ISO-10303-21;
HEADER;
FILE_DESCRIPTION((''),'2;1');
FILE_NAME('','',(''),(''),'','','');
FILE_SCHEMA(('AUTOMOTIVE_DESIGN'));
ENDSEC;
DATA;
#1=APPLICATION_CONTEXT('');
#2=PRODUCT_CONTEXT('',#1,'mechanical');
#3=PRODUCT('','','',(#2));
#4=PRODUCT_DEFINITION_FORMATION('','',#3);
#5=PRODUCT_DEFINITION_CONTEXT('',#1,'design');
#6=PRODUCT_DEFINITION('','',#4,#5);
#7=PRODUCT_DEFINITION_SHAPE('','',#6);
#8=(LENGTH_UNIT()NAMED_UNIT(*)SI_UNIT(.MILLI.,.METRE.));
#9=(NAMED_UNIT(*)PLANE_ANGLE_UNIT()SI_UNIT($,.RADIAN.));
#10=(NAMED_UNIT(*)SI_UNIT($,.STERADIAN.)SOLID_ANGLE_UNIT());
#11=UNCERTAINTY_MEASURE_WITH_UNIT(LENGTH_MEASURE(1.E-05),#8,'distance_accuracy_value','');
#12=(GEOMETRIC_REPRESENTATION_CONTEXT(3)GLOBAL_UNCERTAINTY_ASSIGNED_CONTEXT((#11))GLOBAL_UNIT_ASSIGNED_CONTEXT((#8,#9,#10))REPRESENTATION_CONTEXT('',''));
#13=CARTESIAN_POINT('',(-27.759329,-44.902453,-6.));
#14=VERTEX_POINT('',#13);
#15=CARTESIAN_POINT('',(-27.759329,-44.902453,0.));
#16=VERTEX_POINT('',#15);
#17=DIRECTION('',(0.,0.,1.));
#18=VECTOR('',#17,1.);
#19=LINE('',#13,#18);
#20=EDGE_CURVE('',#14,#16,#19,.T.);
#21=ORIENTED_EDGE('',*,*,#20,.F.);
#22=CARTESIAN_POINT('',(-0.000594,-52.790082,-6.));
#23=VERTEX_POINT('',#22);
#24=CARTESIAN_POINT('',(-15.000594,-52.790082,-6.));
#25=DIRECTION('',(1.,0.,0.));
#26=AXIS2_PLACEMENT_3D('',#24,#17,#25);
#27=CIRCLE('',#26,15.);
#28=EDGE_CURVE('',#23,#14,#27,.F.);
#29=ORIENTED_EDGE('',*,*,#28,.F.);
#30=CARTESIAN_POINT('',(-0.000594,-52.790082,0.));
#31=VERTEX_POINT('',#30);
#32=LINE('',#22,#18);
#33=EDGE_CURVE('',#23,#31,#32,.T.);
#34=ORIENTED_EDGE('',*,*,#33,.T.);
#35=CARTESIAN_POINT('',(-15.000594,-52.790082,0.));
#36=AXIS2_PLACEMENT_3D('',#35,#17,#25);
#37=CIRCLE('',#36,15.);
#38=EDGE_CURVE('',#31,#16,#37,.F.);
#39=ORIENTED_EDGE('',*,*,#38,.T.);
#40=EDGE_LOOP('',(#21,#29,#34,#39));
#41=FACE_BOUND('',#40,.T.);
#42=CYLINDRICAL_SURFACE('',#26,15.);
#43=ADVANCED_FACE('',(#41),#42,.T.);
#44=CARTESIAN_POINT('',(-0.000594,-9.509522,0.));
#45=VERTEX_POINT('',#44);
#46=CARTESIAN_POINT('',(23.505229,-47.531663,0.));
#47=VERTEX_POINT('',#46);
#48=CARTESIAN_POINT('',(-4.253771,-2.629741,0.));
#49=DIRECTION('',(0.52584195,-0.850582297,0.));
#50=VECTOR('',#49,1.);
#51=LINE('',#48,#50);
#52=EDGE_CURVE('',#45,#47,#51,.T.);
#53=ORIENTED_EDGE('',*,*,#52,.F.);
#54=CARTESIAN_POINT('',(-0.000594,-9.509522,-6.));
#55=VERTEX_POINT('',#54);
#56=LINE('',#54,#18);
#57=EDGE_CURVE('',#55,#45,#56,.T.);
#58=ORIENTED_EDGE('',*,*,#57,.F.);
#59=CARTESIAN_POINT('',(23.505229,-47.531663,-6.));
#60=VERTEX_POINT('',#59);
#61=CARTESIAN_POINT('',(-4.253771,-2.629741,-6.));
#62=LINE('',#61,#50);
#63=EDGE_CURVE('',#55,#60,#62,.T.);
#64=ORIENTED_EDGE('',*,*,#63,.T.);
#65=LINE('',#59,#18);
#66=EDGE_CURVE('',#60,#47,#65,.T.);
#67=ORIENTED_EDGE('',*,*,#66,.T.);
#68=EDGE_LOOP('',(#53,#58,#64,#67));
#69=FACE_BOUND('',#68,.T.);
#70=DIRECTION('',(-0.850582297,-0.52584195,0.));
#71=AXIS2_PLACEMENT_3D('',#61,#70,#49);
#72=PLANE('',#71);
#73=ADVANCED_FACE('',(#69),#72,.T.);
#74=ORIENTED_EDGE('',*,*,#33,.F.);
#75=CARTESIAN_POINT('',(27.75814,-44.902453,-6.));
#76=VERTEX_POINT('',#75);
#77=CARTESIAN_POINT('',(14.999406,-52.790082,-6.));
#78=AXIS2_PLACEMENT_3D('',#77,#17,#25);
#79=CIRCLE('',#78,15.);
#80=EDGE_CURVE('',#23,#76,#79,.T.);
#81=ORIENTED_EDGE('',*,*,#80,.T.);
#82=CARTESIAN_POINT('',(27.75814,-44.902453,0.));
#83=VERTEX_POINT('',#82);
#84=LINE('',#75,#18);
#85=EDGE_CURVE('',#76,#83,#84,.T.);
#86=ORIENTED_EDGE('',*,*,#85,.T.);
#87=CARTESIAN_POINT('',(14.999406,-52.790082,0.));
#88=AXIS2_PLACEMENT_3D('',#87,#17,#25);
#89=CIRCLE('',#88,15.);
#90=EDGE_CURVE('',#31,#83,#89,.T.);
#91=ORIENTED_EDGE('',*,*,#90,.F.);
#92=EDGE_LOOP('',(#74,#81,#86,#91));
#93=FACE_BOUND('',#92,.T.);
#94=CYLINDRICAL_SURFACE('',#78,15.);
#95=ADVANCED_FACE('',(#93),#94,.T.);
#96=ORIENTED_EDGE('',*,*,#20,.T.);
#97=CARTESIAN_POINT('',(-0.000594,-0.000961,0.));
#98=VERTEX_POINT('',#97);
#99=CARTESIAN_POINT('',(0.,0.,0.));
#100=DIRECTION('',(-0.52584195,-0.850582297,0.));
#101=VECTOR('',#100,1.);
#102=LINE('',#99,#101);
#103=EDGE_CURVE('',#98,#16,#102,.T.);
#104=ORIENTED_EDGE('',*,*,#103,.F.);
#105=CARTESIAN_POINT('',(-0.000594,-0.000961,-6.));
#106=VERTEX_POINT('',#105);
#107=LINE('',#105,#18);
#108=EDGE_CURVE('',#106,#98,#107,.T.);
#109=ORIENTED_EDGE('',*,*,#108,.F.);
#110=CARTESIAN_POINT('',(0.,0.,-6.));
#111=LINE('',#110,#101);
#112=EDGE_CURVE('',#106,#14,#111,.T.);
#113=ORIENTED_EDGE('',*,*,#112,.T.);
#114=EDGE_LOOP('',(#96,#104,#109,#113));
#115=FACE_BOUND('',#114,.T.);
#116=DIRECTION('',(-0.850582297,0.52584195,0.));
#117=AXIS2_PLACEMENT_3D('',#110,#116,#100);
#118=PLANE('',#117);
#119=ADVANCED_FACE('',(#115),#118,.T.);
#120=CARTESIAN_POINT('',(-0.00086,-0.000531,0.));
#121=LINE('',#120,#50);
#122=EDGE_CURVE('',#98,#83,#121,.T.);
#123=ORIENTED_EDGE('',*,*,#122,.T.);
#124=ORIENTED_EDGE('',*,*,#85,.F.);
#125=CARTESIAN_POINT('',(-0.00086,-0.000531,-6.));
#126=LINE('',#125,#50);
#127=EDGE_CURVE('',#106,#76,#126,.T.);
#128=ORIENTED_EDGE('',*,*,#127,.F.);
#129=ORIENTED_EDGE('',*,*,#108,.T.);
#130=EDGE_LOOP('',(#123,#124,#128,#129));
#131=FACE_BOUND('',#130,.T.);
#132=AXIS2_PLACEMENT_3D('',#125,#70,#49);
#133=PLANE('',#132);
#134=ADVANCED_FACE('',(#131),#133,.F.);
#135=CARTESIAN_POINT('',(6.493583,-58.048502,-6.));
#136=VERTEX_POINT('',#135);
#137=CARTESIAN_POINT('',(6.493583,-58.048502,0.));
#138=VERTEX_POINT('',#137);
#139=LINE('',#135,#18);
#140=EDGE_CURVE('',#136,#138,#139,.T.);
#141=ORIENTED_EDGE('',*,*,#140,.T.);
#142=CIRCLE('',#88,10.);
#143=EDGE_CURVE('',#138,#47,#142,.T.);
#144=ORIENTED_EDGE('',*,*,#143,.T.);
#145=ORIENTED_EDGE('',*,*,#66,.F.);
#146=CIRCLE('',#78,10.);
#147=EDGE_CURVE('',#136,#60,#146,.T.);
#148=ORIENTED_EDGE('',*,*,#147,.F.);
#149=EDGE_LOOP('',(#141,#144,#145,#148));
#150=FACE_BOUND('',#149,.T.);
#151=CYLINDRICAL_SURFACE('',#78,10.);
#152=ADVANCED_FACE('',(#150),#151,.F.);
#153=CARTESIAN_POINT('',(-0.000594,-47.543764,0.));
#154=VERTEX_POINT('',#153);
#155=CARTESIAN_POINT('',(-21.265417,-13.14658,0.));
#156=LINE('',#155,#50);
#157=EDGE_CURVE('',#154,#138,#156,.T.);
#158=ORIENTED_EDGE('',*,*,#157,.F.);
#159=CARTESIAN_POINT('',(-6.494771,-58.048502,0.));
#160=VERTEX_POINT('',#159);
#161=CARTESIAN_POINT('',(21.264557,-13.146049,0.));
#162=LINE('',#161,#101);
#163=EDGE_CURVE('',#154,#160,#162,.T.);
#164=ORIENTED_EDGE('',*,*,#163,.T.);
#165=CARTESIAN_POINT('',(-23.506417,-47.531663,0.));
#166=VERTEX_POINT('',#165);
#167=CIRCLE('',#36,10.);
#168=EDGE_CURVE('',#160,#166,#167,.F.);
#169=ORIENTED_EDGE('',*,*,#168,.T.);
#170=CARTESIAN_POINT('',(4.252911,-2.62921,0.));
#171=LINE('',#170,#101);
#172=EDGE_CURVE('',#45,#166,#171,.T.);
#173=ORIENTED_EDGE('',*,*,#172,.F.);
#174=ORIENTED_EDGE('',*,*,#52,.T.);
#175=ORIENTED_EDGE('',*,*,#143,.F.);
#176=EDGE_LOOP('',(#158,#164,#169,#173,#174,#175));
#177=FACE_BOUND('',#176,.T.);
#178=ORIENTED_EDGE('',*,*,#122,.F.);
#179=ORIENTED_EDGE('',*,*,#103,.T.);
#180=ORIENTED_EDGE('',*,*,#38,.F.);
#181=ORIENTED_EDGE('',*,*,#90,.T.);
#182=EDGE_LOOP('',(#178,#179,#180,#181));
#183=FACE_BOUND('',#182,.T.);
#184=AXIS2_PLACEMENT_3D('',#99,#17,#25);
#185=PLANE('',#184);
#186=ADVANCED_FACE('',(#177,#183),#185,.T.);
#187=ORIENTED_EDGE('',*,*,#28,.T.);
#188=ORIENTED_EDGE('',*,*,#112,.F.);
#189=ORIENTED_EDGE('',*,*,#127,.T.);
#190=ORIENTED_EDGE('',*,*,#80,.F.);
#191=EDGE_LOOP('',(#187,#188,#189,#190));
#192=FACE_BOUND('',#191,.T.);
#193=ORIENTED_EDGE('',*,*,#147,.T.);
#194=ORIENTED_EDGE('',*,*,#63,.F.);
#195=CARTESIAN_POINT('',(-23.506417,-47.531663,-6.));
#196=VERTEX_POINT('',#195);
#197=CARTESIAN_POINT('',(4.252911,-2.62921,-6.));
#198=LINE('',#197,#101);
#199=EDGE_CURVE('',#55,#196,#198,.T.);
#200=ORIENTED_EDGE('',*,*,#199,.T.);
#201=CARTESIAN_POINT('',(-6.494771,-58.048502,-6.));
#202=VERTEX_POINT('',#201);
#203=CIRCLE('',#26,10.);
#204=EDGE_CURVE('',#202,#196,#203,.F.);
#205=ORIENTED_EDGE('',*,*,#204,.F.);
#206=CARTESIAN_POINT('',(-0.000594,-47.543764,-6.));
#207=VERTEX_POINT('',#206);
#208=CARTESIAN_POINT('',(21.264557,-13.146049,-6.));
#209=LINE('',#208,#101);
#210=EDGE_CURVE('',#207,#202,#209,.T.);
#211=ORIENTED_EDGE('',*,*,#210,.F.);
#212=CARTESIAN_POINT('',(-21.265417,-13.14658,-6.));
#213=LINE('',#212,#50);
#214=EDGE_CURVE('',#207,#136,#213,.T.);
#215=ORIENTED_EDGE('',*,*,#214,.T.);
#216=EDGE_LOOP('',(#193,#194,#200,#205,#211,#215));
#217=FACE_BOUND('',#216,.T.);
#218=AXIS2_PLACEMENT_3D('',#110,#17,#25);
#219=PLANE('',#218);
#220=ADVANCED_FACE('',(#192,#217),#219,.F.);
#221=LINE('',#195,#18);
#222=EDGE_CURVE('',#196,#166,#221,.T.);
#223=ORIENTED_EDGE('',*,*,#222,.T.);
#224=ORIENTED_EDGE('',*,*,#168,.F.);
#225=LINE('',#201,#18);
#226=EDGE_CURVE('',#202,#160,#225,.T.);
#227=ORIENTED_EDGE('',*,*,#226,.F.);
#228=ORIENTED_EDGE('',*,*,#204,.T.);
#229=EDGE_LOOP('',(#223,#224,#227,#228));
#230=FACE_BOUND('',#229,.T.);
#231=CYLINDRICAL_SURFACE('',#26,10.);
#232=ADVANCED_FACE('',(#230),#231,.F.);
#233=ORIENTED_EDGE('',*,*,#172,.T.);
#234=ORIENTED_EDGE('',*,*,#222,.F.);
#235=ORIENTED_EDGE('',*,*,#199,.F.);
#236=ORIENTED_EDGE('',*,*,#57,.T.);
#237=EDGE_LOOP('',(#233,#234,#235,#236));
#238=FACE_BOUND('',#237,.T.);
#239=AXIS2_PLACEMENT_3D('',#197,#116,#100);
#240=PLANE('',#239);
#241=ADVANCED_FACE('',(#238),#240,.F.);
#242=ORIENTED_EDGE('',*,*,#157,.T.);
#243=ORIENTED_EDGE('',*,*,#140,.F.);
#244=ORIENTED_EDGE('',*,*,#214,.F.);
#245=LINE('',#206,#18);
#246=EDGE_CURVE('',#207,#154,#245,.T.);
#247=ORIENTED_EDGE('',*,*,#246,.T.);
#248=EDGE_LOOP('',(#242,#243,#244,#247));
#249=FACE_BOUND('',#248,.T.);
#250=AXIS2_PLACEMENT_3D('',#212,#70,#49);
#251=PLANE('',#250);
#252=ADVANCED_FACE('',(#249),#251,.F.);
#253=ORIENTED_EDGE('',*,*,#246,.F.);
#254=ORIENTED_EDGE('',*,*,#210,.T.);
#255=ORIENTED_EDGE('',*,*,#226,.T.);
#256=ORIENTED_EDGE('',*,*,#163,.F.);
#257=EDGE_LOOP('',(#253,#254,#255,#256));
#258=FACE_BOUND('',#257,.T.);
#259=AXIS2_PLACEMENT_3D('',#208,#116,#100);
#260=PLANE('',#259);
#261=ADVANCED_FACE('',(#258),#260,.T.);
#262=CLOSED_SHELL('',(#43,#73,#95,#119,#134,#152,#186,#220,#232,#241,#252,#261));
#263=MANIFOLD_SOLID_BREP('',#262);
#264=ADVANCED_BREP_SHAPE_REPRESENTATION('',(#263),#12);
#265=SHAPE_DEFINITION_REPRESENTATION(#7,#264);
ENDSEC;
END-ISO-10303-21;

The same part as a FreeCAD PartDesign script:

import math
import FreeCAD as App
import Part
import Sketcher
from FreeCAD import Vector
Q = App.Units.Quantity

doc = App.newDocument("Part")
body = doc.addObject("PartDesign::Body", "Body")

sketch1 = body.newObject("Sketcher::SketchObject", "Sketch")
sketch1.AttachmentSupport = (doc.getObject("XY_Plane"), [""])
sketch1.MapMode = "FlatFace"
sketch1.addGeometry(Part.LineSegment(Vector(-28, -45, 0), Vector(0, 0, 0)), False)
sketch1.addGeometry(Part.LineSegment(Vector(0, 0, 0), Vector(28, -45, 0)), False)
sketch1.addGeometry(Part.ArcOfCircle(Part.Circle(Vector(15, -53, 0), Vector(0, 0, 1), 15), math.radians(-180), math.radians(32)), False)
sketch1.addGeometry(Part.ArcOfCircle(Part.Circle(Vector(-15, -53, 0), Vector(0, 0, 1), 15), math.radians(148), math.radians(360)), False)
sketch1.addGeometry(Part.ArcOfCircle(Part.Circle(Vector(15, -53, 0), Vector(0, 0, 1), 10), math.radians(-148), math.radians(32)), False)
sketch1.addGeometry(Part.LineSegment(Vector(24, -48, 0), Vector(0, -10, 0)), False)
sketch1.addGeometry(Part.LineSegment(Vector(0, -10, 0), Vector(-24, -48, 0)), False)
sketch1.addGeometry(Part.ArcOfCircle(Part.Circle(Vector(-15, -53, 0), Vector(0, 0, 1), 10), math.radians(148), math.radians(328)), False)
sketch1.addGeometry(Part.LineSegment(Vector(-6, -58, 0), Vector(0, -48, 0)), False)
sketch1.addGeometry(Part.LineSegment(Vector(0, -48, 0), Vector(6, -58, 0)), False)
sketch1.addConstraint(Sketcher.Constraint("Coincident", 0, 2, 1, 1))
sketch1.addConstraint(Sketcher.Constraint("Tangent", 1, 2, 2, 2))
sketch1.addConstraint(Sketcher.Constraint("Tangent", 2, 1, 3, 2))
sketch1.addConstraint(Sketcher.Constraint("Tangent", 3, 1, 0, 1))
sketch1.addConstraint(Sketcher.Constraint("Tangent", 4, 2, 5, 1))
sketch1.addConstraint(Sketcher.Constraint("Coincident", 5, 2, 6, 1))
sketch1.addConstraint(Sketcher.Constraint("Tangent", 6, 2, 7, 1))
sketch1.addConstraint(Sketcher.Constraint("Tangent", 7, 2, 8, 1))
sketch1.addConstraint(Sketcher.Constraint("Coincident", 8, 2, 9, 1))
sketch1.addConstraint(Sketcher.Constraint("Tangent", 9, 2, 4, 1))
sketch1.addConstraint(Sketcher.Constraint("Coincident", 4, 3, 2, 3))
sketch1.addConstraint(Sketcher.Constraint("Coincident", 7, 3, 3, 3))
sketch1.addConstraint(Sketcher.Constraint("Equal", 2, 3))
sketch1.addConstraint(Sketcher.Constraint("Equal", 4, 7))
sketch1.addConstraint(Sketcher.Constraint("Parallel", 1, 5))
sketch1.addConstraint(Sketcher.Constraint("Parallel", 0, 6))
sketch1.addConstraint(Sketcher.Constraint("Parallel", 6, 8))
sketch1.addConstraint(Sketcher.Constraint("Parallel", 5, 9))
sketch1.addConstraint(Sketcher.Constraint("Horizontal", 2, 3, 3, 3))
sketch1.addConstraint(Sketcher.Constraint("Horizontal", 1, 2, 3, 1))
sketch1.addConstraint(Sketcher.Constraint("Radius", 2, Q("15 mm")))
sketch1.addConstraint(Sketcher.Constraint("Radius", 4, Q("10 mm")))
sketch1.addConstraint(Sketcher.Constraint("DistanceY", 7, 2, -1, 1, Q("58.048502 mm")))
sketch1.addConstraint(Sketcher.Constraint("Distance", 0, Q("52.789121 mm")))
sketch1.addConstraint(Sketcher.Constraint("DistanceX", -1, 1, 1, 2, Q("27.75814 mm")))
pad1 = body.newObject("PartDesign::Pad", "Pad")
pad1.Profile = sketch1
pad1.Length = 6
pad1.Reversed = True

doc.recompute()
